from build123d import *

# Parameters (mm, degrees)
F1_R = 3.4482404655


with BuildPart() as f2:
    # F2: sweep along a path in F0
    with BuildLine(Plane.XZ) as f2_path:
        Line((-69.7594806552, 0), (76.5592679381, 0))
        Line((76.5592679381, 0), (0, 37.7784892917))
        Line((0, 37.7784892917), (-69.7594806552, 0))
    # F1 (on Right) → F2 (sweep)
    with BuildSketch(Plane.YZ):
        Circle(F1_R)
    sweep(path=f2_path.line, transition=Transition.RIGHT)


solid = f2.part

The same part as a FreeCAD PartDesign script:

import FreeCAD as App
import Part
import Sketcher

V = App.Vector

doc = App.newDocument("Part")
body = doc.addObject("PartDesign::Body", "Body")

# Sketch on YZ plane
sketch1 = body.newObject("Sketcher::SketchObject", "Sketch")
sketch1.AttachmentSupport = (doc.getObject("YZ_Plane"), [""])
sketch1.MapMode = "FlatFace"
sketch1.addGeometry(Part.Circle(V(0, 0, 0), V(0, 0, 1), 3.4), False)
sketch1.addConstraint(Sketcher.Constraint("Coincident", 0, 3, -1, 1))
sketch1.addConstraint(Sketcher.Constraint("Diameter", 0, 6.896481))

# Sketch on XZ plane
sketch2 = body.newObject("Sketcher::SketchObject", "Sketch001")
sketch2.AttachmentSupport = (doc.getObject("XZ_Plane"), [""])
sketch2.MapMode = "FlatFace"
sketch2.addGeometry(Part.LineSegment(V(-70, 0, 0), V(77, 0, 0)), False)
sketch2.addGeometry(Part.LineSegment(V(77, 0, 0), V(0, 38, 0)), False)
sketch2.addGeometry(Part.LineSegment(V(0, 38, 0), V(-70, 0, 0)), False)
sketch2.addConstraint(Sketcher.Constraint("Coincident", 0, 2, 1, 1))
sketch2.addConstraint(Sketcher.Constraint("Coincident", 1, 2, 2, 1))
sketch2.addConstraint(Sketcher.Constraint("Coincident", 2, 2, 0, 1))
sketch2.addConstraint(Sketcher.Constraint("Horizontal", 0))
sketch2.addConstraint(Sketcher.Constraint("PointOnObject", 0, 2, -1))
sketch2.addConstraint(Sketcher.Constraint("PointOnObject", 1, 2, -2))
sketch2.addConstraint(Sketcher.Constraint("DistanceX", 0, 1, 0, 2, 146.318749))
sketch2.addConstraint(Sketcher.Constraint("Distance", 1, 85.372922))
sketch2.addConstraint(Sketcher.Constraint("Distance", 2, 79.332209))
doc.recompute()

additivepipe = body.newObject("PartDesign::AdditivePipe", "AdditivePipe")
additivepipe.Profile = sketch1
additivepipe.Spine = (sketch2, ["Edge1", "Edge2", "Edge3"])
additivepipe.Transition = "Right corner"

doc.recompute()
